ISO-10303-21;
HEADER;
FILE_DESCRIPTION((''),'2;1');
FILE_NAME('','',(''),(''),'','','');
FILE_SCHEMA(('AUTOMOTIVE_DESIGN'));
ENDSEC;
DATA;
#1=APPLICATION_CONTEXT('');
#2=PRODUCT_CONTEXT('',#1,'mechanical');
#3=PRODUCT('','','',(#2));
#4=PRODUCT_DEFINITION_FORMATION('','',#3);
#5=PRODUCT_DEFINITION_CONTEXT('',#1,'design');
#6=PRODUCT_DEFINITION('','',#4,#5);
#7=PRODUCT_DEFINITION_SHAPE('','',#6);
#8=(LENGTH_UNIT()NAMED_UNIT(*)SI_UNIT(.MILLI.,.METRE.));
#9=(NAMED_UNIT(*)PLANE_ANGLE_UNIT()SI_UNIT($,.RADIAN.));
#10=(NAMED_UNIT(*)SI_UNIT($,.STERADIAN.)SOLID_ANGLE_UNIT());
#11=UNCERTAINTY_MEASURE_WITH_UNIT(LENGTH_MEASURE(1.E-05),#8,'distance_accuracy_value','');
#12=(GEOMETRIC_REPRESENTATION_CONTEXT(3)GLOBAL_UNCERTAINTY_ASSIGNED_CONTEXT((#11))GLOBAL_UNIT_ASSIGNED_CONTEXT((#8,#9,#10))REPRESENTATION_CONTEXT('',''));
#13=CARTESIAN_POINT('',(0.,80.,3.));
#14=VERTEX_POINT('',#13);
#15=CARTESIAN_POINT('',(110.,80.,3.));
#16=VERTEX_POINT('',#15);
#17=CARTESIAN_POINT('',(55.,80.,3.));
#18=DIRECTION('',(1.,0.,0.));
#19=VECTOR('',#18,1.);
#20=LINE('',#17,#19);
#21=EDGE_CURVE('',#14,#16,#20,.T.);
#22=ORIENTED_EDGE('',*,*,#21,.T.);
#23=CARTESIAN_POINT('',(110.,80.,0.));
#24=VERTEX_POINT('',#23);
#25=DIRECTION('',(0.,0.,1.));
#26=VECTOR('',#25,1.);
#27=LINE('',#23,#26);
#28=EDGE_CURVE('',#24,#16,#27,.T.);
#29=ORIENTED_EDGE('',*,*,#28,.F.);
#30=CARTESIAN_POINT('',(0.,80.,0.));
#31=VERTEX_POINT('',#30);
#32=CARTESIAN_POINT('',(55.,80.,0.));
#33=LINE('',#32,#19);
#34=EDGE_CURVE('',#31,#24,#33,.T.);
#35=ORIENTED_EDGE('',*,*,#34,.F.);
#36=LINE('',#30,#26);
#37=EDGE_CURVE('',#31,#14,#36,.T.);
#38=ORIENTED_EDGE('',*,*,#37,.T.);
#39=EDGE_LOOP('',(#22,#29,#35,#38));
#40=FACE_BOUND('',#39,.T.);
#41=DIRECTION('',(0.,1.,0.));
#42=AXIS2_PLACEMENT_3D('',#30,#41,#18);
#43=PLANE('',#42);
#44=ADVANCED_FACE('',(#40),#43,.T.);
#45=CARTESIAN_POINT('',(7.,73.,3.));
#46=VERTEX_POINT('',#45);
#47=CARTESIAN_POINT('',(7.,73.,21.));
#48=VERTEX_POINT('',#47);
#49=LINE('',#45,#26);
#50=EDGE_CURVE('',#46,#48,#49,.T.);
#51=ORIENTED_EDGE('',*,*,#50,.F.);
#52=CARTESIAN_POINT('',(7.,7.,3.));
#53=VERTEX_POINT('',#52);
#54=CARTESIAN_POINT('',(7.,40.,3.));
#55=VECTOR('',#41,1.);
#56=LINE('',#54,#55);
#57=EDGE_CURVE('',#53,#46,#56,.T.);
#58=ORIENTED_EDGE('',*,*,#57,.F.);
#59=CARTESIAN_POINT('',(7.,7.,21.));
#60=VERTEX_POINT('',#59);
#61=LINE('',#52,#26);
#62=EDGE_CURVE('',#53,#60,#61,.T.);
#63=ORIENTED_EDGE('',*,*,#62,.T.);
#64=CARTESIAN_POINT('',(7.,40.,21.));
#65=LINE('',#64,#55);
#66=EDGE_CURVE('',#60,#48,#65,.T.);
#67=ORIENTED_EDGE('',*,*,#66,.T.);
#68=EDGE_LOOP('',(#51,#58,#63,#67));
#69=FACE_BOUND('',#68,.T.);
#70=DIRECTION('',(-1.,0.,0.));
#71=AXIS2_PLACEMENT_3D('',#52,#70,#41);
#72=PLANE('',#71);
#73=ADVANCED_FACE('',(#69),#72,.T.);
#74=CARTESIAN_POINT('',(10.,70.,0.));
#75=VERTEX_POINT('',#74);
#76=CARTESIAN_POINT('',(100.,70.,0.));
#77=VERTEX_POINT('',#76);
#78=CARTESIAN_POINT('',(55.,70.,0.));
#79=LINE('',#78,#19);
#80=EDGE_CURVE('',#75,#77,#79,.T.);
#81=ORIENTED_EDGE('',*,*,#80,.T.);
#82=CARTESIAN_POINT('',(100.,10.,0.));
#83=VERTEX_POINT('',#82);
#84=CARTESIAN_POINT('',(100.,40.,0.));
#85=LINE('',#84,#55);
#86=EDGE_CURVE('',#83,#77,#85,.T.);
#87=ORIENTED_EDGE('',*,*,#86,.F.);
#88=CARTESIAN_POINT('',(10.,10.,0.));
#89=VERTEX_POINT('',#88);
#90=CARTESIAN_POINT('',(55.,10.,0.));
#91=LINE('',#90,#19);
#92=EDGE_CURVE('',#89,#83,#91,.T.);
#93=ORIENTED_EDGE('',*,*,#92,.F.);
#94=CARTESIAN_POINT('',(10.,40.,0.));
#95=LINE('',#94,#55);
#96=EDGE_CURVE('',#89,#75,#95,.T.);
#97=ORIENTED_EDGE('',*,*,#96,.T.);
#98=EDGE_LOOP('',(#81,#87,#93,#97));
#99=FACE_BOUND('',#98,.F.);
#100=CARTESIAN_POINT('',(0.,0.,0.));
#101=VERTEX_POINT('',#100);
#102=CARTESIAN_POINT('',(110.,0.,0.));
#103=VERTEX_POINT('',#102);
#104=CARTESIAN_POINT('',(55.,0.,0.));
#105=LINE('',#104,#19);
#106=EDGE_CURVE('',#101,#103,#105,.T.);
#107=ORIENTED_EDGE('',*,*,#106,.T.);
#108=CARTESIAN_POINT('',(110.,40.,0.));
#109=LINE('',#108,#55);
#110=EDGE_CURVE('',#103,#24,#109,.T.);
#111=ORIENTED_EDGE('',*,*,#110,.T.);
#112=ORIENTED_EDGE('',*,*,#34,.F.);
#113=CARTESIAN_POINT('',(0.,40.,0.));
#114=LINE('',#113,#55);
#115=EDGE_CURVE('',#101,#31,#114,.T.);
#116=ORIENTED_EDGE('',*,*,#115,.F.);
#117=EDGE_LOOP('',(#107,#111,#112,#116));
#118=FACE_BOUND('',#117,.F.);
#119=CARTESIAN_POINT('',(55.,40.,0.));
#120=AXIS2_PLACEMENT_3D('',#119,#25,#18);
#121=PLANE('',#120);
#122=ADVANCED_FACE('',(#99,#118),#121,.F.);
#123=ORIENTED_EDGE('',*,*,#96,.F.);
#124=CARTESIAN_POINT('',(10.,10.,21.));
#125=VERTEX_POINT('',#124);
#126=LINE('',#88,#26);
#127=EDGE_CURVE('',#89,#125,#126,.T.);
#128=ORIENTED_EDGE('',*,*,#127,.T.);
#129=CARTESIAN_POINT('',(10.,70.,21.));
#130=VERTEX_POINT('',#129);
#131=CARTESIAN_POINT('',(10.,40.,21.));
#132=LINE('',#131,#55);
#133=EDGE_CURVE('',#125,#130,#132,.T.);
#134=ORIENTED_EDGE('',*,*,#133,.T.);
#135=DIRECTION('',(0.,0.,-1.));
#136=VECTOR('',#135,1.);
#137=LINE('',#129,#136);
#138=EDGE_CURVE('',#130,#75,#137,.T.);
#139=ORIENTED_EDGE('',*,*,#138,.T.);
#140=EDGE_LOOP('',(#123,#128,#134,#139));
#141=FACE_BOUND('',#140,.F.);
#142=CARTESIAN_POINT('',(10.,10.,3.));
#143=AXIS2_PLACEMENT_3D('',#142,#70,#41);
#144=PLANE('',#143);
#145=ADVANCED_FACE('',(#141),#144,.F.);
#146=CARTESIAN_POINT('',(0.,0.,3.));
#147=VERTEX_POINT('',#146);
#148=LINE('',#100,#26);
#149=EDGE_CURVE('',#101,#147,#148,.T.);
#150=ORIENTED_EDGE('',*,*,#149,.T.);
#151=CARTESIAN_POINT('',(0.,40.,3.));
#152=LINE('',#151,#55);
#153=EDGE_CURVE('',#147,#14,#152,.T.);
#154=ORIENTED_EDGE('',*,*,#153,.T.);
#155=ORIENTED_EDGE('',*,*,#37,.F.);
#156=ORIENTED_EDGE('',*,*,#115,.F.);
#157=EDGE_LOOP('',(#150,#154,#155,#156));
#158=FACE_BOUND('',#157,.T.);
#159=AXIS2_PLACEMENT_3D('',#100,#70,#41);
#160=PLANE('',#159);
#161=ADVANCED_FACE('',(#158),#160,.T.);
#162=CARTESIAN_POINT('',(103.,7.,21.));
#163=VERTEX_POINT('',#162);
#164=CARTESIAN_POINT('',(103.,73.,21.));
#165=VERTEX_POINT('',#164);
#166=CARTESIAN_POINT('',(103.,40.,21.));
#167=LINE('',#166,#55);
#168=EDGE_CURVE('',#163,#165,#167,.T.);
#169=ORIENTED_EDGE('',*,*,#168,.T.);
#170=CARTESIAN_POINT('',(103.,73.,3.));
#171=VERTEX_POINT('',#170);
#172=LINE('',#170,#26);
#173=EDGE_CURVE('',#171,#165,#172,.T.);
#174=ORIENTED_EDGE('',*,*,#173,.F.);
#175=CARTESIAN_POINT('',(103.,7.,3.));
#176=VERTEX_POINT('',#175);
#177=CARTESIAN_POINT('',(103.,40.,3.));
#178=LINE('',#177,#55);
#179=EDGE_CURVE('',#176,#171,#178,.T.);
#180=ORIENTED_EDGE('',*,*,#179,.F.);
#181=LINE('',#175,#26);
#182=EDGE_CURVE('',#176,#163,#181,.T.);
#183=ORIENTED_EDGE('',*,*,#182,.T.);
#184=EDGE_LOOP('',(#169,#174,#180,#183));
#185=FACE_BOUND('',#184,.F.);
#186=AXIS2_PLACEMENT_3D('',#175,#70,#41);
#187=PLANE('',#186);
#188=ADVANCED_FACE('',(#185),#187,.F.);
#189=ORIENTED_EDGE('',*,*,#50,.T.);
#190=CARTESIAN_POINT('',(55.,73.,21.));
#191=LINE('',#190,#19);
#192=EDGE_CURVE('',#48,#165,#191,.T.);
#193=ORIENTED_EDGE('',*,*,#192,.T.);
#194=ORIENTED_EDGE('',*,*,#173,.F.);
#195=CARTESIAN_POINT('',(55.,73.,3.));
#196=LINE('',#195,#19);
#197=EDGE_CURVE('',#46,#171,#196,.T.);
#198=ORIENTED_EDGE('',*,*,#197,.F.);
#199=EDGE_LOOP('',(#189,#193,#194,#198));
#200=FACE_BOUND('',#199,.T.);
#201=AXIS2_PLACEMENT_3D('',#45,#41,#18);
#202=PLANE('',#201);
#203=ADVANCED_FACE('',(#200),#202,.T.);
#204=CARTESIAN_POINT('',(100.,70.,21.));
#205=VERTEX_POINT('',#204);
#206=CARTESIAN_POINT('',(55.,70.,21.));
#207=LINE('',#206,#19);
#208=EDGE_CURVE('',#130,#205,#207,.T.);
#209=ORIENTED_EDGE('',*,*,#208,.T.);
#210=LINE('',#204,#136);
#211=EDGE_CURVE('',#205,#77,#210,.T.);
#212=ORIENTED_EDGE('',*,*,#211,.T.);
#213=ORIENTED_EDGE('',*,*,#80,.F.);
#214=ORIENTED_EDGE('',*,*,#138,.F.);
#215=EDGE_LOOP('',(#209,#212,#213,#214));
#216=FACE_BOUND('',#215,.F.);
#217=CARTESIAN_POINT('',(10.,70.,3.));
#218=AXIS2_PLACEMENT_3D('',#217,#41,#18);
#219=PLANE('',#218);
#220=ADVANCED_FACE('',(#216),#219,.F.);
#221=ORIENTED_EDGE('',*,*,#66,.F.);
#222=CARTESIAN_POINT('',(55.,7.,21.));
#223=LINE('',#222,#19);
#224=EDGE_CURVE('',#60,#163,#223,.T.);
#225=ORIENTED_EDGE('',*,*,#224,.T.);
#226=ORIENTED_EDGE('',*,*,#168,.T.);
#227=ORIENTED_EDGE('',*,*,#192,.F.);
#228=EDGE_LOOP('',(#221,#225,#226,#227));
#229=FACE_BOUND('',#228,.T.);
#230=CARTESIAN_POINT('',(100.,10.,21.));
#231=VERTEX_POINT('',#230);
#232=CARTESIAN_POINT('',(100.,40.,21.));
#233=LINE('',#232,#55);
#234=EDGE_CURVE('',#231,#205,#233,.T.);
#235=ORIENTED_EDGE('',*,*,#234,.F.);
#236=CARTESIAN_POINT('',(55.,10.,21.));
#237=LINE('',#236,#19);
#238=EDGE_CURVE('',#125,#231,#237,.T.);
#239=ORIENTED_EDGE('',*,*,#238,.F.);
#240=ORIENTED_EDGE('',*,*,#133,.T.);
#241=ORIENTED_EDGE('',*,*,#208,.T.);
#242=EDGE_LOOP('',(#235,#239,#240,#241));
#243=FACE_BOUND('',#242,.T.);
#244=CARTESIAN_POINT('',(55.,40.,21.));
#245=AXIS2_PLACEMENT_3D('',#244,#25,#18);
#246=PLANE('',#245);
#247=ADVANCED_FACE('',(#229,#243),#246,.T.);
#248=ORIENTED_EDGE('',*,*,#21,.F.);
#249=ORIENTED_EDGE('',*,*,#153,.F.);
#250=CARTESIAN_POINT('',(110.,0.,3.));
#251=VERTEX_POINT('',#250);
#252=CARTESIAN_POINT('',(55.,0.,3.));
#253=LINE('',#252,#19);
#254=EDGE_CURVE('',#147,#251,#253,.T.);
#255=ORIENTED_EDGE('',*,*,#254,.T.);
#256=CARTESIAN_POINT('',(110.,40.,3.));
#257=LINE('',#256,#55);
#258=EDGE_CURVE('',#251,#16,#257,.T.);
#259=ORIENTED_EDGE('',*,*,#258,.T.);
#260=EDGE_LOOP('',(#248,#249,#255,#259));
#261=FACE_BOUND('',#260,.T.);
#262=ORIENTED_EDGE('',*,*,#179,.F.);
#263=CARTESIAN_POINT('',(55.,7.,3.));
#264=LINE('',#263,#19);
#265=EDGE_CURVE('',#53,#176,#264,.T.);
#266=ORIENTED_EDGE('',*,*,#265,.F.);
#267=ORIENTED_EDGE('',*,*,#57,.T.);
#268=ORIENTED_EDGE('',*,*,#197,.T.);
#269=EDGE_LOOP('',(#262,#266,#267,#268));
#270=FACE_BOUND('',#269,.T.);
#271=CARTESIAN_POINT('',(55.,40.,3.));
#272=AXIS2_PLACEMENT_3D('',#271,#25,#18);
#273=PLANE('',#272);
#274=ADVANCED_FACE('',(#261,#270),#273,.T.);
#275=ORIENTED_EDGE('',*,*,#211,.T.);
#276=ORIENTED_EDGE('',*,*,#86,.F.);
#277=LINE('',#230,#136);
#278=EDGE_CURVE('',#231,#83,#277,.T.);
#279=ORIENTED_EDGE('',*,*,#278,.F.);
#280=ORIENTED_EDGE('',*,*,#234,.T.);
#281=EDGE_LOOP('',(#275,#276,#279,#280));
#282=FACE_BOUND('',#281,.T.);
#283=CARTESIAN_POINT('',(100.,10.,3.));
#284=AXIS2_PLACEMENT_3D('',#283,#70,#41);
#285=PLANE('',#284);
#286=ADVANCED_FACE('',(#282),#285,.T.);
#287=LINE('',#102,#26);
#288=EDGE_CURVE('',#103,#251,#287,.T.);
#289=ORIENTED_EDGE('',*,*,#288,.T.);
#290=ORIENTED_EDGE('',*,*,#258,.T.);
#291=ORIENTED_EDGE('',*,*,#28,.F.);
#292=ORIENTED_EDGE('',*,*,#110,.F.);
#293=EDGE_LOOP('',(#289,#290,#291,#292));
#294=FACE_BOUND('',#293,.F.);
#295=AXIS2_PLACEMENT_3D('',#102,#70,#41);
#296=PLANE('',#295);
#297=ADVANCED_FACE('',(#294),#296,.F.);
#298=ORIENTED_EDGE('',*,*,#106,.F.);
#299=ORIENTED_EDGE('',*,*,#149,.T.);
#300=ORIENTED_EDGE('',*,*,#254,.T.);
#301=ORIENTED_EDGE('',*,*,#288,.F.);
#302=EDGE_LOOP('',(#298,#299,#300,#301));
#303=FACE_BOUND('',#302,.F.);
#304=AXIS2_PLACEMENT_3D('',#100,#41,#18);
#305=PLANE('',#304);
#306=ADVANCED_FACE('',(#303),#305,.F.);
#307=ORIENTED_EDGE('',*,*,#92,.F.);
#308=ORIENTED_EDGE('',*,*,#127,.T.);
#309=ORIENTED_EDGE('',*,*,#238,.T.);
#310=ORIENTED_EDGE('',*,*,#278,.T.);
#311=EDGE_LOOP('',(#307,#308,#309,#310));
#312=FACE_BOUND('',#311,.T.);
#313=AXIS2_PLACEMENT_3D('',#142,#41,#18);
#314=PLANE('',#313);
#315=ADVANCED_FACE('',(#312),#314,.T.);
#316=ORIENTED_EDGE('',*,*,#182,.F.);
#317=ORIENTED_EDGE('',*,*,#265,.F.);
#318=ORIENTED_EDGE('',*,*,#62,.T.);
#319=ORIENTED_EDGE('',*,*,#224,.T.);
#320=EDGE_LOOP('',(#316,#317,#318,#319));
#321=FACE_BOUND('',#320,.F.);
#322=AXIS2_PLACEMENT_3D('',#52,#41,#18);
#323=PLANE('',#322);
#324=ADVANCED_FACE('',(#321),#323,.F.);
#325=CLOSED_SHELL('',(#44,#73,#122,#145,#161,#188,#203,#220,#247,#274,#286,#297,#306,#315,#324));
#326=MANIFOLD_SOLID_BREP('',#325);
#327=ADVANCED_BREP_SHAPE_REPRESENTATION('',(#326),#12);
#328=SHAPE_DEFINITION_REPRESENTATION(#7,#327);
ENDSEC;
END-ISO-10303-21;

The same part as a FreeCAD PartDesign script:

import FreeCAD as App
import Part
import Sketcher

doc = App.newDocument("Part")
params = doc.addObject("Spreadsheet::Sheet", "Params")
for row, (alias, value) in enumerate([
    ("sketch1_width", "110 mm"),
    ("sketch1_width2", "90 mm"),
    ("sketch1_height", "80 mm"),
    ("sketch1_height2", "60 mm"),
    ("pad1_length", "3 mm"),
    ("sketch2_width", "96 mm"),
    ("sketch2_width2", "90 mm"),
    ("sketch2_height", "66 mm"),
    ("sketch2_height2", "60 mm"),
    ("pad2_length", "18 mm"),
], start=1):
    params.set(f"A{row}", alias)
    params.set(f"B{row}", "=" + value)
    params.setAlias(f"B{row}", alias)

body = doc.addObject("PartDesign::Body", "Body")

sketch1 = body.newObject("Sketcher::SketchObject", "Sketch")
sketch1.AttachmentSupport = (doc.getObject("XY_Plane"), [""])
sketch1.MapMode = "FlatFace"
sketch1.addGeometry([
    Part.LineSegment(App.Vector(0, 80, 0), App.Vector(0, 0, 0)),
    Part.LineSegment(App.Vector(0, 0, 0), App.Vector(110, 0, 0)),
    Part.LineSegment(App.Vector(110, 0, 0), App.Vector(110, 80, 0)),
    Part.LineSegment(App.Vector(110, 80, 0), App.Vector(0, 80, 0)),
    Part.LineSegment(App.Vector(100, 10, 0), App.Vector(10, 10, 0)),
    Part.LineSegment(App.Vector(10, 10, 0), App.Vector(10, 70, 0)),
    Part.LineSegment(App.Vector(10, 70, 0), App.Vector(100, 70, 0)),
    Part.LineSegment(App.Vector(100, 70, 0), App.Vector(100, 10, 0)),
], False)
sketch1.addConstraint([
    Sketcher.Constraint("Coincident", 0, 2, 1, 1),
    Sketcher.Constraint("Coincident", 1, 2, 2, 1),
    Sketcher.Constraint("Coincident", 2, 2, 3, 1),
    Sketcher.Constraint("Coincident", 3, 2, 0, 1),
    Sketcher.Constraint("Coincident", 4, 2, 5, 1),
    Sketcher.Constraint("Coincident", 5, 2, 6, 1),
    Sketcher.Constraint("Coincident", 6, 2, 7, 1),
    Sketcher.Constraint("Coincident", 7, 2, 4, 1),
    Sketcher.Constraint("Vertical", 0),
    Sketcher.Constraint("Horizontal", 1),
    Sketcher.Constraint("Vertical", 2),
    Sketcher.Constraint("Horizontal", 3),
    Sketcher.Constraint("Horizontal", 4),
    Sketcher.Constraint("Vertical", 5),
    Sketcher.Constraint("Horizontal", 6),
    Sketcher.Constraint("Vertical", 7),
    Sketcher.Constraint("Coincident", 0, 2, -1, 1),
    Sketcher.Constraint("DistanceX", 1, 1, 1, 2, 110.0),
    Sketcher.Constraint("DistanceX", 4, 2, 4, 1, 90.0),
    Sketcher.Constraint("DistanceY", 0, 2, 0, 1, 80.0),
    Sketcher.Constraint("DistanceY", 5, 1, 5, 2, 60.0),
    Sketcher.Constraint("DistanceX", -1, 1, 4, 2, 10.0),
    Sketcher.Constraint("DistanceY", -1, 1, 4, 2, 10.0),
])
sketch1.setExpression("Constraints[17]", "Params.sketch1_width")
sketch1.setExpression("Constraints[18]", "Params.sketch1_width2")
sketch1.setExpression("Constraints[19]", "Params.sketch1_height")
sketch1.setExpression("Constraints[20]", "Params.sketch1_height2")
pad1 = body.newObject("PartDesign::Pad", "Pad")
pad1.Profile = sketch1
pad1.setExpression("Length", "Params.pad1_length")

sketch2 = body.newObject("Sketcher::SketchObject", "Sketch001")
sketch2.AttachmentSupport = (doc.getObject("XY_Plane"), [""])
sketch2.MapMode = "FlatFace"
sketch2.AttachmentOffset = App.Placement(App.Vector(0, 0, 3), App.Rotation())
sketch2.addGeometry([
    Part.LineSegment(App.Vector(7, 73, 0), App.Vector(7, 7, 0)),
    Part.LineSegment(App.Vector(7, 7, 0), App.Vector(103, 7, 0)),
    Part.LineSegment(App.Vector(103, 7, 0), App.Vector(103, 73, 0)),
    Part.LineSegment(App.Vector(103, 73, 0), App.Vector(7, 73, 0)),
    Part.LineSegment(App.Vector(100, 10, 0), App.Vector(10, 10, 0)),
    Part.LineSegment(App.Vector(10, 10, 0), App.Vector(10, 70, 0)),
    Part.LineSegment(App.Vector(10, 70, 0), App.Vector(100, 70, 0)),
    Part.LineSegment(App.Vector(100, 70, 0), App.Vector(100, 10, 0)),
], False)
sketch2.addConstraint([
    Sketcher.Constraint("Coincident", 0, 2, 1, 1),
    Sketcher.Constraint("Coincident", 1, 2, 2, 1),
    Sketcher.Constraint("Coincident", 2, 2, 3, 1),
    Sketcher.Constraint("Coincident", 3, 2, 0, 1),
    Sketcher.Constraint("Coincident", 4, 2, 5, 1),
    Sketcher.Constraint("Coincident", 5, 2, 6, 1),
    Sketcher.Constraint("Coincident", 6, 2, 7, 1),
    Sketcher.Constraint("Coincident", 7, 2, 4, 1),
    Sketcher.Constraint("Vertical", 0),
    Sketcher.Constraint("Horizontal", 1),
    Sketcher.Constraint("Vertical", 2),
    Sketcher.Constraint("Horizontal", 3),
    Sketcher.Constraint("Horizontal", 4),
    Sketcher.Constraint("Vertical", 5),
    Sketcher.Constraint("Horizontal", 6),
    Sketcher.Constraint("Vertical", 7),
    Sketcher.Constraint("DistanceX", 1, 1, 1, 2, 96.0),
    Sketcher.Constraint("DistanceX", 4, 2, 4, 1, 90.0),
    Sketcher.Constraint("DistanceY", 0, 2, 0, 1, 66.0),
    Sketcher.Constraint("DistanceY", 5, 1, 5, 2, 60.0),
    Sketcher.Constraint("DistanceX", -1, 1, 0, 2, 7.0),
    Sketcher.Constraint("DistanceY", -1, 1, 0, 2, 7.0),
    Sketcher.Constraint("DistanceX", -1, 1, 4, 2, 10.0),
    Sketcher.Constraint("DistanceY", -1, 1, 4, 2, 10.0),
])
sketch2.setExpression("Constraints[16]", "Params.sketch2_width")
sketch2.setExpression("Constraints[17]", "Params.sketch2_width2")
sketch2.setExpression("Constraints[18]", "Params.sketch2_height")
sketch2.setExpression("Constraints[19]", "Params.sketch2_height2")
pad2 = body.newObject("PartDesign::Pad", "Pad001")
pad2.Profile = sketch2
pad2.setExpression("Length", "Params.pad2_length")

doc.recompute()
